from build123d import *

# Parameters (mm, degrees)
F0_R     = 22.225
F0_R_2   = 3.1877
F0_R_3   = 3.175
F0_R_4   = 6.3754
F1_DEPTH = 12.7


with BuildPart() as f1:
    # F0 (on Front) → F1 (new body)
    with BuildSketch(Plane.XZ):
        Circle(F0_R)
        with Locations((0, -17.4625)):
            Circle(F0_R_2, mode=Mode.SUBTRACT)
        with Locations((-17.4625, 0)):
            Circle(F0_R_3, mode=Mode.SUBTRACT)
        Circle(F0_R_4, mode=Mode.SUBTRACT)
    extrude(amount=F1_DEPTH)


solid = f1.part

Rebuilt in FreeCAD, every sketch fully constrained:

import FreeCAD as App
import Part
import Sketcher
Q = App.Units.Quantity

doc = App.newDocument("Part")
params = doc.addObject("Spreadsheet::Sheet", "Params")
for row, (alias, value) in enumerate([
    ("sketch1_diameter", "1.75 in"),
    ("sketch1_diameter2", "0.25 in"),
    ("sketch1_diameter3", "0.251 in"),
    ("sketch1_diameter4", "0.502 in"),
    ("pad1_length", "0.5 in"),
], start=1):
    params.set(f"A{row}", alias)
    params.set(f"B{row}", "=" + value)
    params.setAlias(f"B{row}", alias)

body = doc.addObject("PartDesign::Body", "Body")

# Sketch on XZ plane
sketch1 = body.newObject("Sketcher::SketchObject", "Sketch")
sketch1.AttachmentSupport = (doc.getObject("XZ_Plane"), [""])
sketch1.MapMode = "FlatFace"
sketch1.addGeometry(Part.Circle(App.Vector(0, 0, 0), App.Vector(0, 0, 1), 22.2), False)
sketch1.addGeometry(Part.Circle(App.Vector(0, -17.5, 0), App.Vector(0, 0, 1), 3.2), False)
sketch1.addGeometry(Part.Circle(App.Vector(-17.5, 0, 0), App.Vector(0, 0, 1), 3.2), False)
sketch1.addGeometry(Part.Circle(App.Vector(0, 0, 0), App.Vector(0, 0, 1), 6.4), False)
sketch1.addConstraint(Sketcher.Constraint("Coincident", 0, 3, -1, 1))
sketch1.addConstraint(Sketcher.Constraint("Coincident", 3, 3, -1, 1))
sketch1.addConstraint(Sketcher.Constraint("PointOnObject", 1, 3, -2))
sketch1.addConstraint(Sketcher.Constraint("PointOnObject", 2, 3, -1))
sketch1.addConstraint(Sketcher.Constraint("Diameter", 0, Q("1.75 in")))
sketch1.addConstraint(Sketcher.Constraint("Diameter", 2, Q("0.25 in")))
sketch1.addConstraint(Sketcher.Constraint("Diameter", 1, Q("0.251 in")))
sketch1.addConstraint(Sketcher.Constraint("Diameter", 3, Q("0.502 in")))
sketch1.addConstraint(Sketcher.Constraint("DistanceY", 1, 3, -1, 1, Q("0.6875 in")))
sketch1.addConstraint(Sketcher.Constraint("DistanceX", 2, 3, -1, 1, Q("0.6875 in")))
sketch1.setExpression("Constraints[4]", "Params.sketch1_diameter")
sketch1.setExpression("Constraints[5]", "Params.sketch1_diameter2")
sketch1.setExpression("Constraints[6]", "Params.sketch1_diameter3")
sketch1.setExpression("Constraints[7]", "Params.sketch1_diameter4")
pad1 = body.newObject("PartDesign::Pad", "Pad")
pad1.Profile = sketch1
pad1.setExpression("Length", "Params.pad1_length")

doc.recompute()
